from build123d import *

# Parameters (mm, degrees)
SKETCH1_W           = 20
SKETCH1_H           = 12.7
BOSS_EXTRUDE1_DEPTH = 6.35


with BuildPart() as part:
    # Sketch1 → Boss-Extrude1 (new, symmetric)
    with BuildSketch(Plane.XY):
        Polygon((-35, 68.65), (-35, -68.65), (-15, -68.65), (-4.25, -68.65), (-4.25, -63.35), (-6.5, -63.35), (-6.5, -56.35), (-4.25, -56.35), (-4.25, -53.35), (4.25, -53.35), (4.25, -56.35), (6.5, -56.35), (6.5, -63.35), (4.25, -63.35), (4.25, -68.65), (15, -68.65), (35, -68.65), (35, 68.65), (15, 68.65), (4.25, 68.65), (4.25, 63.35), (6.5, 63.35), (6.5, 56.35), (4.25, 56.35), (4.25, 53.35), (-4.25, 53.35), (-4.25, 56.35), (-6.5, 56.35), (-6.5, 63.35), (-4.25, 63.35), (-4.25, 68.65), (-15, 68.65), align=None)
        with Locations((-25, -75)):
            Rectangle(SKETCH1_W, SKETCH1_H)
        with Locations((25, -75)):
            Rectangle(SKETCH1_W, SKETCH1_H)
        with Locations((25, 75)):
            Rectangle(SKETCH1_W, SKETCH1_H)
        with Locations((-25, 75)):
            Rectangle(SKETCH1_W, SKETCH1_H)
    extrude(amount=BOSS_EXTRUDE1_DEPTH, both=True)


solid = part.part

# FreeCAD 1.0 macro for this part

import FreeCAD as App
import Part
import Sketcher

doc = App.newDocument("Part")
params = doc.addObject("Spreadsheet::Sheet", "Params")
for row, (alias, value) in enumerate([
    ("sketch1_width", "20 mm"),
    ("sketch1_height", "7 mm"),
    ("sketch1_height2", "3 mm"),
    ("sketch1_width2", "8.5 mm"),
    ("sketch1_height3", "12.7 mm"),
    ("pad1_length", "12.7 mm"),
], start=1):
    params.set(f"A{row}", alias)
    params.set(f"B{row}", "=" + value)
    params.setAlias(f"B{row}", alias)

body = doc.addObject("PartDesign::Body", "Body")

# Sketch on XY plane
sketch1 = body.newObject("Sketcher::SketchObject", "Sketch")
sketch1.AttachmentSupport = (doc.getObject("XY_Plane"), [""])
sketch1.MapMode = "FlatFace"
sketch1.addGeometry(Part.LineSegment(App.Vector(-35, -81.3, 0), App.Vector(-15, -81.3, 0)), False)
sketch1.addGeometry(Part.LineSegment(App.Vector(-15, -81.3, 0), App.Vector(-15, -68.7, 0)), False)
sketch1.addGeometry(Part.LineSegment(App.Vector(-15, -68.7, 0), App.Vector(-4.2, -68.7, 0)), False)
sketch1.addGeometry(Part.LineSegment(App.Vector(-4.2, -68.7, 0), App.Vector(-4.2, -63.4, 0)), False)
sketch1.addGeometry(Part.LineSegment(App.Vector(-4.2, -63.4, 0), App.Vector(-6.5, -63.4, 0)), False)
sketch1.addGeometry(Part.LineSegment(App.Vector(-6.5, -63.4, 0), App.Vector(-6.5, -56.4, 0)), False)
sketch1.addGeometry(Part.LineSegment(App.Vector(-6.5, -56.4, 0), App.Vector(-4.2, -56.4, 0)), False)
sketch1.addGeometry(Part.LineSegment(App.Vector(-4.2, -56.4, 0), App.Vector(-4.2, -53.4, 0)), False)
sketch1.addGeometry(Part.LineSegment(App.Vector(-4.2, -53.4, 0), App.Vector(4.2, -53.4, 0)), False)
sketch1.addGeometry(Part.LineSegment(App.Vector(4.2, -53.4, 0), App.Vector(4.2, -56.4, 0)), False)
sketch1.addGeometry(Part.LineSegment(App.Vector(4.2, -56.4, 0), App.Vector(6.5, -56.4, 0)), False)
sketch1.addGeometry(Part.LineSegment(App.Vector(6.5, -56.4, 0), App.Vector(6.5, -63.4, 0)), False)
sketch1.addGeometry(Part.LineSegment(App.Vector(6.5, -63.4, 0), App.Vector(4.2, -63.4, 0)), False)
sketch1.addGeometry(Part.LineSegment(App.Vector(4.2, -63.4, 0), App.Vector(4.2, -68.7, 0)), False)
sketch1.addGeometry(Part.LineSegment(App.Vector(4.2, -68.7, 0), App.Vector(15, -68.7, 0)), False)
sketch1.addGeometry(Part.LineSegment(App.Vector(15, -68.7, 0), App.Vector(15, -81.3, 0)), False)
sketch1.addGeometry(Part.LineSegment(App.Vector(15, -81.3, 0), App.Vector(35, -81.3, 0)), False)
sketch1.addGeometry(Part.LineSegment(App.Vector(35, -81.3, 0), App.Vector(35, 81.3, 0)), False)
sketch1.addGeometry(Part.LineSegment(App.Vector(35, 81.3, 0), App.Vector(15, 81.3, 0)), False)
sketch1.addGeometry(Part.LineSegment(App.Vector(15, 81.3, 0), App.Vector(15, 68.7, 0)), False)
sketch1.addGeometry(Part.LineSegment(App.Vector(15, 68.7, 0), App.Vector(4.2, 68.7, 0)), False)
sketch1.addGeometry(Part.LineSegment(App.Vector(4.2, 68.7, 0), App.Vector(4.2, 63.4, 0)), False)
sketch1.addGeometry(Part.LineSegment(App.Vector(4.2, 63.4, 0), App.Vector(6.5, 63.4, 0)), False)
sketch1.addGeometry(Part.LineSegment(App.Vector(6.5, 63.4, 0), App.Vector(6.5, 56.4, 0)), False)
sketch1.addGeometry(Part.LineSegment(App.Vector(6.5, 56.4, 0), App.Vector(4.2, 56.4, 0)), False)
sketch1.addGeometry(Part.LineSegment(App.Vector(4.2, 56.4, 0), App.Vector(4.2, 53.4, 0)), False)
sketch1.addGeometry(Part.LineSegment(App.Vector(4.2, 53.4, 0), App.Vector(-4.2, 53.4, 0)), False)
sketch1.addGeometry(Part.LineSegment(App.Vector(-4.2, 53.4, 0), App.Vector(-4.2, 56.4, 0)), False)
sketch1.addGeometry(Part.LineSegment(App.Vector(-4.2, 56.4, 0), App.Vector(-6.5, 56.4, 0)), False)
sketch1.addGeometry(Part.LineSegment(App.Vector(-6.5, 56.4, 0), App.Vector(-6.5, 63.4, 0)), False)
sketch1.addGeometry(Part.LineSegment(App.Vector(-6.5, 63.4, 0), App.Vector(-4.2, 63.4, 0)), False)
sketch1.addGeometry(Part.LineSegment(App.Vector(-4.2, 63.4, 0), App.Vector(-4.2, 68.7, 0)), False)
sketch1.addGeometry(Part.LineSegment(App.Vector(-4.2, 68.7, 0), App.Vector(-15, 68.7, 0)), False)
sketch1.addGeometry(Part.LineSegment(App.Vector(-15, 68.7, 0), App.Vector(-15, 81.3, 0)), False)
sketch1.addGeometry(Part.LineSegment(App.Vector(-15, 81.3, 0), App.Vector(-35, 81.3, 0)), False)
sketch1.addGeometry(Part.LineSegment(App.Vector(-35, 81.3, 0), App.Vector(-35, -81.3, 0)), False)
sketch1.addConstraint(Sketcher.Constraint("Coincident", 0, 2, 1, 1))
sketch1.addConstraint(Sketcher.Constraint("Coincident", 1, 2, 2, 1))
sketch1.addConstraint(Sketcher.Constraint("Coincident", 2, 2, 3, 1))
sketch1.addConstraint(Sketcher.Constraint("Coincident", 3, 2, 4, 1))
sketch1.addConstraint(Sketcher.Constraint("Coincident", 4, 2, 5, 1))
sketch1.addConstraint(Sketcher.Constraint("Coincident", 5, 2, 6, 1))
sketch1.addConstraint(Sketcher.Constraint("Coincident", 6, 2, 7, 1))
sketch1.addConstraint(Sketcher.Constraint("Coincident", 7, 2, 8, 1))
sketch1.addConstraint(Sketcher.Constraint("Coincident", 8, 2, 9, 1))
sketch1.addConstraint(Sketcher.Constraint("Coincident", 9, 2, 10, 1))
sketch1.addConstraint(Sketcher.Constraint("Coincident", 10, 2, 11, 1))
sketch1.addConstraint(Sketcher.Constraint("Coincident", 11, 2, 12, 1))
sketch1.addConstraint(Sketcher.Constraint("Coincident", 12, 2, 13, 1))
sketch1.addConstraint(Sketcher.Constraint("Coincident", 13, 2, 14, 1))
sketch1.addConstraint(Sketcher.Constraint("Coincident", 14, 2, 15, 1))
sketch1.addConstraint(Sketcher.Constraint("Coincident", 15, 2, 16, 1))
sketch1.addConstraint(Sketcher.Constraint("Coincident", 16, 2, 17, 1))
sketch1.addConstraint(Sketcher.Constraint("Coincident", 17, 2, 18, 1))
sketch1.addConstraint(Sketcher.Constraint("Coincident", 18, 2, 19, 1))
sketch1.addConstraint(Sketcher.Constraint("Coincident", 19, 2, 20, 1))
sketch1.addConstraint(Sketcher.Constraint("Coincident", 20, 2, 21, 1))
sketch1.addConstraint(Sketcher.Constraint("Coincident", 21, 2, 22, 1))
sketch1.addConstraint(Sketcher.Constraint("Coincident", 22, 2, 23, 1))
sketch1.addConstraint(Sketcher.Constraint("Coincident", 23, 2, 24, 1))
sketch1.addConstraint(Sketcher.Constraint("Coincident", 24, 2, 25, 1))
sketch1.addConstraint(Sketcher.Constraint("Coincident", 25, 2, 26, 1))
sketch1.addConstraint(Sketcher.Constraint("Coincident", 26, 2, 27, 1))
sketch1.addConstraint(Sketcher.Constraint("Coincident", 27, 2, 28, 1))
sketch1.addConstraint(Sketcher.Constraint("Coincident", 28, 2, 29, 1))
sketch1.addConstraint(Sketcher.Constraint("Coincident", 29, 2, 30, 1))
sketch1.addConstraint(Sketcher.Constraint("Coincident", 30, 2, 31, 1))
sketch1.addConstraint(Sketcher.Constraint("Coincident", 31, 2, 32, 1))
sketch1.addConstraint(Sketcher.Constraint("Coincident", 32, 2, 33, 1))
sketch1.addConstraint(Sketcher.Constraint("Coincident", 33, 2, 34, 1))
sketch1.addConstraint(Sketcher.Constraint("Coincident", 34, 2, 35, 1))
sketch1.addConstraint(Sketcher.Constraint("Coincident", 35, 2, 0, 1))
sketch1.addConstraint(Sketcher.Constraint("Horizontal", 0))
sketch1.addConstraint(Sketcher.Constraint("Vertical", 1))
sketch1.addConstraint(Sketcher.Constraint("Horizontal", 2))
sketch1.addConstraint(Sketcher.Constraint("Vertical", 3))
sketch1.addConstraint(Sketcher.Constraint("Horizontal", 4))
sketch1.addConstraint(Sketcher.Constraint("Vertical", 5))
sketch1.addConstraint(Sketcher.Constraint("Horizontal", 6))
sketch1.addConstraint(Sketcher.Constraint("Vertical", 7))
sketch1.addConstraint(Sketcher.Constraint("Horizontal", 8))
sketch1.addConstraint(Sketcher.Constraint("Vertical", 9))
sketch1.addConstraint(Sketcher.Constraint("Horizontal", 10))
sketch1.addConstraint(Sketcher.Constraint("Vertical", 11))
sketch1.addConstraint(Sketcher.Constraint("Horizontal", 12))
sketch1.addConstraint(Sketcher.Constraint("Vertical", 13))
sketch1.addConstraint(Sketcher.Constraint("Horizontal", 14))
sketch1.addConstraint(Sketcher.Constraint("Vertical", 15))
sketch1.addConstraint(Sketcher.Constraint("Horizontal", 16))
sketch1.addConstraint(Sketcher.Constraint("Vertical", 17))
sketch1.addConstraint(Sketcher.Constraint("Horizontal", 18))
sketch1.addConstraint(Sketcher.Constraint("Vertical", 19))
sketch1.addConstraint(Sketcher.Constraint("Horizontal", 20))
sketch1.addConstraint(Sketcher.Constraint("Vertical", 21))
sketch1.addConstraint(Sketcher.Constraint("Horizontal", 22))
sketch1.addConstraint(Sketcher.Constraint("Vertical", 23))
sketch1.addConstraint(Sketcher.Constraint("Horizontal", 24))
sketch1.addConstraint(Sketcher.Constraint("Vertical", 25))
sketch1.addConstraint(Sketcher.Constraint("Horizontal", 26))
sketch1.addConstraint(Sketcher.Constraint("Vertical", 27))
sketch1.addConstraint(Sketcher.Constraint("Horizontal", 28))
sketch1.addConstraint(Sketcher.Constraint("Vertical", 29))
sketch1.addConstraint(Sketcher.Constraint("Horizontal", 30))
sketch1.addConstraint(Sketcher.Constraint("Vertical", 31))
sketch1.addConstraint(Sketcher.Constraint("Horizontal", 32))
sketch1.addConstraint(Sketcher.Constraint("Vertical", 33))
sketch1.addConstraint(Sketcher.Constraint("Horizontal", 34))
sketch1.addConstraint(Sketcher.Constraint("Vertical", 35))
sketch1.addConstraint(Sketcher.Constraint("Symmetric", 0, 2, 18, 2, -1, 1))
sketch1.addConstraint(Sketcher.Constraint("Symmetric", 2, 2, 20, 2, -1, 1))
sketch1.addConstraint(Sketcher.Constraint("Symmetric", 4, 2, 22, 2, -1, 1))
sketch1.addConstraint(Sketcher.Constraint("Symmetric", 6, 2, 24, 2, -1, 1))
sketch1.addConstraint(Sketcher.Constraint("Symmetric", 8, 2, 26, 2, -1, 1))
sketch1.addConstraint(Sketcher.Constraint("Symmetric", 10, 2, 28, 2, -1, 1))
sketch1.addConstraint(Sketcher.Constraint("Symmetric", 12, 2, 30, 2, -1, 1))
sketch1.addConstraint(Sketcher.Constraint("Symmetric", 14, 2, 32, 2, -1, 1))
sketch1.addConstraint(Sketcher.Constraint("Symmetric", 16, 2, 34, 2, -1, 1))
sketch1.addConstraint(Sketcher.Constraint("Symmetric", 6, 2, 9, 2, -2))
sketch1.addConstraint(Sketcher.Constraint("Symmetric", 4, 2, 11, 2, -2))
sketch1.addConstraint(Sketcher.Constraint("Symmetric", 2, 2, 13, 2, -2))
sketch1.addConstraint(Sketcher.Constraint("Symmetric", 0, 2, 15, 2, -2))
sketch1.addConstraint(Sketcher.Constraint("Vertical", 3, 2, 6, 2))
sketch1.addConstraint(Sketcher.Constraint("DistanceX", 0, 1, 0, 2, 20.0))
sketch1.addConstraint(Sketcher.Constraint("DistanceY", 5, 1, 5, 2, 7.0))
sketch1.addConstraint(Sketcher.Constraint("DistanceY", 7, 1, 7, 2, 3.0))
sketch1.addConstraint(Sketcher.Constraint("DistanceX", 8, 1, 8, 2, 8.5))
sketch1.addConstraint(Sketcher.Constraint("DistanceY", 1, 1, 1, 2, 12.7))
sketch1.addConstraint(Sketcher.Constraint("DistanceY", 3, 1, 3, 2, 5.3))
sketch1.addConstraint(Sketcher.Constraint("DistanceY", 17, 1, 17, 2, 162.7))
sketch1.addConstraint(Sketcher.Constraint("DistanceX", 0, 2, -1, 1, 15.0))
sketch1.addConstraint(Sketcher.Constraint("DistanceX", 4, 2, 4, 1, 2.25))
sketch1.setExpression("Constraints[86]", "Params.sketch1_width")
sketch1.setExpression("Constraints[87]", "Params.sketch1_height")
sketch1.setExpression("Constraints[88]", "Params.sketch1_height2")
sketch1.setExpression("Constraints[89]", "Params.sketch1_width2")
sketch1.setExpression("Constraints[90]", "Params.sketch1_height3")
pad1 = body.newObject("PartDesign::Pad", "Pad")
pad1.Profile = sketch1
pad1.setExpression("Length", "Params.pad1_length")
pad1.Midplane = True

doc.recompute()
